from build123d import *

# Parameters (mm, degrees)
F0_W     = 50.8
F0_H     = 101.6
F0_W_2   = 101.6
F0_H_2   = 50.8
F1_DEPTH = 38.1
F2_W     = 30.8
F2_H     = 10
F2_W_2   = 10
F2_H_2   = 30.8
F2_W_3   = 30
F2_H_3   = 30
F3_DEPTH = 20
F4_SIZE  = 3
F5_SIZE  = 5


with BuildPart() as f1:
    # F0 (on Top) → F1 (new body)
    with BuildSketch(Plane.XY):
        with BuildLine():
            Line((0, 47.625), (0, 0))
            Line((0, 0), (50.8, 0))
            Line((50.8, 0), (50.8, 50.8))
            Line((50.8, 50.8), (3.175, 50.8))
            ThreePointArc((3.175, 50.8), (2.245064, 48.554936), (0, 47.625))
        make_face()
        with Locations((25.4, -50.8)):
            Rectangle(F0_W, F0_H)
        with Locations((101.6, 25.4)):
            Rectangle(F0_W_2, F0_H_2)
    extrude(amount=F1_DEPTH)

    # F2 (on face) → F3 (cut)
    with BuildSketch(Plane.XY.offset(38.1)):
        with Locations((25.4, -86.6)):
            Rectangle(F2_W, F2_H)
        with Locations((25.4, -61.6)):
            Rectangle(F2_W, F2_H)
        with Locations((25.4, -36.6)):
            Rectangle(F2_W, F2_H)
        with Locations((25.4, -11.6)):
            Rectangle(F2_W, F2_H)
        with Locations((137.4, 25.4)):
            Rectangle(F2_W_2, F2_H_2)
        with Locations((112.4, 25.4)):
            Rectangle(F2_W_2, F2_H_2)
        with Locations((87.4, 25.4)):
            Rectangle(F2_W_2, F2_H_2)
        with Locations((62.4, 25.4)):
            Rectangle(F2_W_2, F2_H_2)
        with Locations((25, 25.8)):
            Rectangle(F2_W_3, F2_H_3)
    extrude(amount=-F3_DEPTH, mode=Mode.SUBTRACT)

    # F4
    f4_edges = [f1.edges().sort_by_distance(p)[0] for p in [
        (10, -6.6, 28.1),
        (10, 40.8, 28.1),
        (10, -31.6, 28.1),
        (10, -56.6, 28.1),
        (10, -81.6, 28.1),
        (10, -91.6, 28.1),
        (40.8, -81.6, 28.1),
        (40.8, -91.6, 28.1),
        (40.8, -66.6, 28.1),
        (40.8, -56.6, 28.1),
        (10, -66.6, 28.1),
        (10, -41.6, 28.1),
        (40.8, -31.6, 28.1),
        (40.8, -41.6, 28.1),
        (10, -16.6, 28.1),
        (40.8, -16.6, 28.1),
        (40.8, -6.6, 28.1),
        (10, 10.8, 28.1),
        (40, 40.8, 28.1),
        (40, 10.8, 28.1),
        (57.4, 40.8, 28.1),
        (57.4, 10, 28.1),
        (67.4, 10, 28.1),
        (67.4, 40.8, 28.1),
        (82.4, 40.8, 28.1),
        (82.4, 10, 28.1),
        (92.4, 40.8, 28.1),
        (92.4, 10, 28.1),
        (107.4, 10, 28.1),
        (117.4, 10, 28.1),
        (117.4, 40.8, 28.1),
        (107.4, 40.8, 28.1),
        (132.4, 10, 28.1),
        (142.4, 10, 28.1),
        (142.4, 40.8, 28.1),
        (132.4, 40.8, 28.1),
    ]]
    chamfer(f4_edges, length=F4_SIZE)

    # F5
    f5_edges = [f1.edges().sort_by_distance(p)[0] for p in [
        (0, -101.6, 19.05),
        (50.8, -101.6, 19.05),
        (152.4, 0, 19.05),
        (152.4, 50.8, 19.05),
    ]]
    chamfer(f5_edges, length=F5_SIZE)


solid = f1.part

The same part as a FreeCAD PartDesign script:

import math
import FreeCAD as App
import Part
import Sketcher

V = App.Vector


def edges_at(feature, points):
    """Names of the edges that pass closest to the given points."""
    edges = feature.Shape.Edges
    near = lambda p: min(range(len(edges)), key=lambda i: edges[i].distToShape(Part.Vertex(*p))[0])
    return sorted({f"Edge{near(p) + 1}" for p in points})


def add_polygon(sketch, points):
    """Adds a closed chain of lines whose ends are joined by coincident constraints."""
    first, n = sketch.GeometryCount, len(points)
    for a, b in zip(points, points[1:] + points[:1]):
        sketch.addGeometry(Part.LineSegment(App.Vector(*a, 0), App.Vector(*b, 0)), False)
    for i in range(n):
        sketch.addConstraint(Sketcher.Constraint("Coincident", first + i, 2, first + (i + 1) % n, 1))

doc = App.newDocument("Part")
body = doc.addObject("PartDesign::Body", "Body")

# Sketch on XY plane
sketch1 = body.newObject("Sketcher::SketchObject", "Sketch")
sketch1.AttachmentSupport = (doc.getObject("XY_Plane"), [""])
sketch1.MapMode = "FlatFace"
sketch1.addGeometry([
    Part.LineSegment(V(0, 47.6, 0), V(0, -101.6, 0)),  # 0
    Part.LineSegment(V(0, -101.6, 0), V(50.8, -101.6, 0)),  # 1
    Part.LineSegment(V(50.8, -101.6, 0), V(50.8, 0, 0)),  # 2
    Part.LineSegment(V(50.8, 0, 0), V(152.4, 0, 0)),  # 3
    Part.LineSegment(V(152.4, 0, 0), V(152.4, 50.8, 0)),  # 4
    Part.LineSegment(V(152.4, 50.8, 0), V(3.2, 50.8, 0)),  # 5
    Part.ArcOfCircle(Part.Circle(V(0, 50.8, 0), V(0, 0, 1), 3.2), math.radians(-90), math.radians(0)),  # 6
], False)
sketch1.addConstraint([
    Sketcher.Constraint("Coincident", 0, 2, 1, 1),
    Sketcher.Constraint("Coincident", 1, 2, 2, 1),
    Sketcher.Constraint("Coincident", 2, 2, 3, 1),
    Sketcher.Constraint("Coincident", 3, 2, 4, 1),
    Sketcher.Constraint("Coincident", 4, 2, 5, 1),
    Sketcher.Constraint("Coincident", 5, 2, 6, 2),
    Sketcher.Constraint("Coincident", 6, 1, 0, 1),
    Sketcher.Constraint("Vertical", 0),
    Sketcher.Constraint("Horizontal", 1),
    Sketcher.Constraint("Vertical", 2),
    Sketcher.Constraint("Horizontal", 3),
    Sketcher.Constraint("Vertical", 4),
    Sketcher.Constraint("Horizontal", 5),
    Sketcher.Constraint("PointOnObject", 6, 3, -2),
    Sketcher.Constraint("PointOnObject", 0, 2, -2),
    Sketcher.Constraint("PointOnObject", 2, 2, -1),
    Sketcher.Constraint("Horizontal", 6, 3, 4, 2),
    Sketcher.Constraint("Equal", 5, 0),
    Sketcher.Constraint("Equal", 3, 2),
    Sketcher.Constraint("DistanceX", 1, 1, 1, 2, 50.8),
    Sketcher.Constraint("DistanceX", 3, 1, 3, 2, 101.6),
    Sketcher.Constraint("Radius", 6, 3.175),
])
pad1 = body.newObject("PartDesign::Pad", "Pad")
pad1.Profile = sketch1
pad1.Length = 38.1

# Sketch on XY plane
sketch2 = body.newObject("Sketcher::SketchObject", "Sketch001")
sketch2.AttachmentSupport = (doc.getObject("XY_Plane"), [""])
sketch2.MapMode = "FlatFace"
sketch2.AttachmentOffset = App.Placement(V(0, 0, 38.1), App.Rotation())
add_polygon(sketch2, [(10, -82), (10, -92), (41, -92), (41, -82)])  # lines 0-3
add_polygon(sketch2, [(10, -57), (10, -67), (41, -67), (41, -57)])  # lines 4-7
add_polygon(sketch2, [(10, -32), (10, -42), (41, -42), (41, -32)])  # lines 8-11
add_polygon(sketch2, [(10, -7), (10, -17), (41, -17), (41, -7)])  # lines 12-15
add_polygon(sketch2, [(132, 41), (132, 10), (142, 10), (142, 41)])  # lines 16-19
add_polygon(sketch2, [(107, 41), (107, 10), (117, 10), (117, 41)])  # lines 20-23
add_polygon(sketch2, [(82, 41), (82, 10), (92, 10), (92, 41)])  # lines 24-27
add_polygon(sketch2, [(57, 41), (57, 10), (67, 10), (67, 41)])  # lines 28-31
add_polygon(sketch2, [(10, 41), (10, 11), (40, 11), (40, 41)])  # lines 32-35
sketch2.addConstraint([
    Sketcher.Constraint("Vertical", 0),
    Sketcher.Constraint("Horizontal", 1),
    Sketcher.Constraint("Vertical", 2),
    Sketcher.Constraint("Horizontal", 3),
    Sketcher.Constraint("Vertical", 4),
    Sketcher.Constraint("Horizontal", 5),
    Sketcher.Constraint("Vertical", 6),
    Sketcher.Constraint("Horizontal", 7),
    Sketcher.Constraint("Vertical", 8),
    Sketcher.Constraint("Horizontal", 9),
    Sketcher.Constraint("Vertical", 10),
    Sketcher.Constraint("Horizontal", 11),
    Sketcher.Constraint("Vertical", 12),
    Sketcher.Constraint("Horizontal", 13),
    Sketcher.Constraint("Vertical", 14),
    Sketcher.Constraint("Horizontal", 15),
    Sketcher.Constraint("Vertical", 16),
    Sketcher.Constraint("Horizontal", 17),
    Sketcher.Constraint("Vertical", 18),
    Sketcher.Constraint("Horizontal", 19),
    Sketcher.Constraint("Vertical", 20),
    Sketcher.Constraint("Horizontal", 21),
    Sketcher.Constraint("Vertical", 22),
    Sketcher.Constraint("Horizontal", 23),
    Sketcher.Constraint("Vertical", 24),
    Sketcher.Constraint("Horizontal", 25),
    Sketcher.Constraint("Vertical", 26),
    Sketcher.Constraint("Horizontal", 27),
    Sketcher.Constraint("Vertical", 28),
    Sketcher.Constraint("Horizontal", 29),
    Sketcher.Constraint("Vertical", 30),
    Sketcher.Constraint("Horizontal", 31),
    Sketcher.Constraint("Vertical", 32),
    Sketcher.Constraint("Horizontal", 33),
    Sketcher.Constraint("Vertical", 34),
    Sketcher.Constraint("Horizontal", 35),
    Sketcher.Constraint("Horizontal", 17, 2, 20, 2),
    Sketcher.Constraint("Horizontal", 19, 2, 22, 2),
    Sketcher.Constraint("Horizontal", 21, 2, 24, 2),
    Sketcher.Constraint("Horizontal", 23, 2, 26, 2),
    Sketcher.Constraint("Horizontal", 25, 2, 28, 2),
    Sketcher.Constraint("Horizontal", 27, 2, 30, 2),
    Sketcher.Constraint("Horizontal", 31, 2, 34, 2),
    Sketcher.Constraint("Vertical", 3, 2, 4, 2),
    Sketcher.Constraint("Vertical", 2, 2, 5, 2),
    Sketcher.Constraint("Vertical", 7, 2, 8, 2),
    Sketcher.Constraint("Vertical", 6, 2, 9, 2),
    Sketcher.Constraint("Vertical", 11, 2, 12, 2),
    Sketcher.Constraint("Vertical", 10, 2, 13, 2),
    Sketcher.Constraint("Vertical", 15, 2, 32, 2),
    Sketcher.Constraint("Equal", 19, 21),
    Sketcher.Constraint("Equal", 23, 25),
    Sketcher.Constraint("Equal", 27, 29),
    Sketcher.Constraint("Equal", 31, 0),
    Sketcher.Constraint("Equal", 2, 4),
    Sketcher.Constraint("Equal", 6, 8),
    Sketcher.Constraint("Equal", 10, 12),
    Sketcher.Constraint("Equal", 15, 16),
    Sketcher.Constraint("Equal", 35, 32),
    Sketcher.Constraint("DistanceX", 17, 1, 17, 2, 10.0),
    Sketcher.Constraint("DistanceX", 33, 1, 33, 2, 30.0),
    Sketcher.Constraint("DistanceX", 1, 1, 1, 2, 30.8),
    Sketcher.Constraint("DistanceX", -1, 1, 0, 2, 10.0),
    Sketcher.Constraint("DistanceY", -1, 1, 16, 2, 10.0),
    Sketcher.Constraint("DistanceY", 3, 2, 4, 2, 15.0),
    Sketcher.Constraint("DistanceY", 7, 2, 8, 2, 15.0),
    Sketcher.Constraint("DistanceY", 11, 2, 12, 2, 15.0),
    Sketcher.Constraint("DistanceX", 20, 2, 16, 2, 25.0),
    Sketcher.Constraint("DistanceX", 24, 2, 20, 2, 25.0),
    Sketcher.Constraint("DistanceX", 28, 2, 24, 2, 25.0),
    Sketcher.Constraint("DistanceY", 0, 2, -1, 1, 91.6),
    Sketcher.Constraint("DistanceX", -1, 1, 16, 2, 132.4),
])
pocket1 = body.newObject("PartDesign::Pocket", "Pocket")
pocket1.Profile = sketch2
pocket1.Length = 20
doc.recompute()

chamfer = body.newObject("PartDesign::Chamfer", "Chamfer")
chamfer.Base = (pocket1, edges_at(pocket1, [
    (10, -6.6, 28.1),
    (10, 40.8, 28.1),
    (10, -31.6, 28.1),
    (10, -56.6, 28.1),
    (10, -81.6, 28.1),
    (10, -91.6, 28.1),
    (40.8, -81.6, 28.1),
    (40.8, -91.6, 28.1),
    (40.8, -66.6, 28.1),
    (40.8, -56.6, 28.1),
    (10, -66.6, 28.1),
    (10, -41.6, 28.1),
    (40.8, -31.6, 28.1),
    (40.8, -41.6, 28.1),
    (10, -16.6, 28.1),
    (40.8, -16.6, 28.1),
    (40.8, -6.6, 28.1),
    (10, 10.8, 28.1),
    (40, 40.8, 28.1),
    (40, 10.8, 28.1),
    (57.4, 40.8, 28.1),
    (57.4, 10, 28.1),
    (67.4, 10, 28.1),
    (67.4, 40.8, 28.1),
    (82.4, 40.8, 28.1),
    (82.4, 10, 28.1),
    (92.4, 40.8, 28.1),
    (92.4, 10, 28.1),
    (107.4, 10, 28.1),
    (117.4, 10, 28.1),
    (117.4, 40.8, 28.1),
    (107.4, 40.8, 28.1),
    (132.4, 10, 28.1),
    (142.4, 10, 28.1),
    (142.4, 40.8, 28.1),
    (132.4, 40.8, 28.1),
]))
chamfer.Size = 3
doc.recompute()

chamfer2 = body.newObject("PartDesign::Chamfer", "Chamfer001")
chamfer2.Base = (chamfer, edges_at(chamfer, [
    (0, -101.6, 19.05),
    (50.8, -101.6, 19.05),
    (152.4, 0, 19.05),
    (152.4, 50.8, 19.05),
]))
chamfer2.Size = 5

doc.recompute()
